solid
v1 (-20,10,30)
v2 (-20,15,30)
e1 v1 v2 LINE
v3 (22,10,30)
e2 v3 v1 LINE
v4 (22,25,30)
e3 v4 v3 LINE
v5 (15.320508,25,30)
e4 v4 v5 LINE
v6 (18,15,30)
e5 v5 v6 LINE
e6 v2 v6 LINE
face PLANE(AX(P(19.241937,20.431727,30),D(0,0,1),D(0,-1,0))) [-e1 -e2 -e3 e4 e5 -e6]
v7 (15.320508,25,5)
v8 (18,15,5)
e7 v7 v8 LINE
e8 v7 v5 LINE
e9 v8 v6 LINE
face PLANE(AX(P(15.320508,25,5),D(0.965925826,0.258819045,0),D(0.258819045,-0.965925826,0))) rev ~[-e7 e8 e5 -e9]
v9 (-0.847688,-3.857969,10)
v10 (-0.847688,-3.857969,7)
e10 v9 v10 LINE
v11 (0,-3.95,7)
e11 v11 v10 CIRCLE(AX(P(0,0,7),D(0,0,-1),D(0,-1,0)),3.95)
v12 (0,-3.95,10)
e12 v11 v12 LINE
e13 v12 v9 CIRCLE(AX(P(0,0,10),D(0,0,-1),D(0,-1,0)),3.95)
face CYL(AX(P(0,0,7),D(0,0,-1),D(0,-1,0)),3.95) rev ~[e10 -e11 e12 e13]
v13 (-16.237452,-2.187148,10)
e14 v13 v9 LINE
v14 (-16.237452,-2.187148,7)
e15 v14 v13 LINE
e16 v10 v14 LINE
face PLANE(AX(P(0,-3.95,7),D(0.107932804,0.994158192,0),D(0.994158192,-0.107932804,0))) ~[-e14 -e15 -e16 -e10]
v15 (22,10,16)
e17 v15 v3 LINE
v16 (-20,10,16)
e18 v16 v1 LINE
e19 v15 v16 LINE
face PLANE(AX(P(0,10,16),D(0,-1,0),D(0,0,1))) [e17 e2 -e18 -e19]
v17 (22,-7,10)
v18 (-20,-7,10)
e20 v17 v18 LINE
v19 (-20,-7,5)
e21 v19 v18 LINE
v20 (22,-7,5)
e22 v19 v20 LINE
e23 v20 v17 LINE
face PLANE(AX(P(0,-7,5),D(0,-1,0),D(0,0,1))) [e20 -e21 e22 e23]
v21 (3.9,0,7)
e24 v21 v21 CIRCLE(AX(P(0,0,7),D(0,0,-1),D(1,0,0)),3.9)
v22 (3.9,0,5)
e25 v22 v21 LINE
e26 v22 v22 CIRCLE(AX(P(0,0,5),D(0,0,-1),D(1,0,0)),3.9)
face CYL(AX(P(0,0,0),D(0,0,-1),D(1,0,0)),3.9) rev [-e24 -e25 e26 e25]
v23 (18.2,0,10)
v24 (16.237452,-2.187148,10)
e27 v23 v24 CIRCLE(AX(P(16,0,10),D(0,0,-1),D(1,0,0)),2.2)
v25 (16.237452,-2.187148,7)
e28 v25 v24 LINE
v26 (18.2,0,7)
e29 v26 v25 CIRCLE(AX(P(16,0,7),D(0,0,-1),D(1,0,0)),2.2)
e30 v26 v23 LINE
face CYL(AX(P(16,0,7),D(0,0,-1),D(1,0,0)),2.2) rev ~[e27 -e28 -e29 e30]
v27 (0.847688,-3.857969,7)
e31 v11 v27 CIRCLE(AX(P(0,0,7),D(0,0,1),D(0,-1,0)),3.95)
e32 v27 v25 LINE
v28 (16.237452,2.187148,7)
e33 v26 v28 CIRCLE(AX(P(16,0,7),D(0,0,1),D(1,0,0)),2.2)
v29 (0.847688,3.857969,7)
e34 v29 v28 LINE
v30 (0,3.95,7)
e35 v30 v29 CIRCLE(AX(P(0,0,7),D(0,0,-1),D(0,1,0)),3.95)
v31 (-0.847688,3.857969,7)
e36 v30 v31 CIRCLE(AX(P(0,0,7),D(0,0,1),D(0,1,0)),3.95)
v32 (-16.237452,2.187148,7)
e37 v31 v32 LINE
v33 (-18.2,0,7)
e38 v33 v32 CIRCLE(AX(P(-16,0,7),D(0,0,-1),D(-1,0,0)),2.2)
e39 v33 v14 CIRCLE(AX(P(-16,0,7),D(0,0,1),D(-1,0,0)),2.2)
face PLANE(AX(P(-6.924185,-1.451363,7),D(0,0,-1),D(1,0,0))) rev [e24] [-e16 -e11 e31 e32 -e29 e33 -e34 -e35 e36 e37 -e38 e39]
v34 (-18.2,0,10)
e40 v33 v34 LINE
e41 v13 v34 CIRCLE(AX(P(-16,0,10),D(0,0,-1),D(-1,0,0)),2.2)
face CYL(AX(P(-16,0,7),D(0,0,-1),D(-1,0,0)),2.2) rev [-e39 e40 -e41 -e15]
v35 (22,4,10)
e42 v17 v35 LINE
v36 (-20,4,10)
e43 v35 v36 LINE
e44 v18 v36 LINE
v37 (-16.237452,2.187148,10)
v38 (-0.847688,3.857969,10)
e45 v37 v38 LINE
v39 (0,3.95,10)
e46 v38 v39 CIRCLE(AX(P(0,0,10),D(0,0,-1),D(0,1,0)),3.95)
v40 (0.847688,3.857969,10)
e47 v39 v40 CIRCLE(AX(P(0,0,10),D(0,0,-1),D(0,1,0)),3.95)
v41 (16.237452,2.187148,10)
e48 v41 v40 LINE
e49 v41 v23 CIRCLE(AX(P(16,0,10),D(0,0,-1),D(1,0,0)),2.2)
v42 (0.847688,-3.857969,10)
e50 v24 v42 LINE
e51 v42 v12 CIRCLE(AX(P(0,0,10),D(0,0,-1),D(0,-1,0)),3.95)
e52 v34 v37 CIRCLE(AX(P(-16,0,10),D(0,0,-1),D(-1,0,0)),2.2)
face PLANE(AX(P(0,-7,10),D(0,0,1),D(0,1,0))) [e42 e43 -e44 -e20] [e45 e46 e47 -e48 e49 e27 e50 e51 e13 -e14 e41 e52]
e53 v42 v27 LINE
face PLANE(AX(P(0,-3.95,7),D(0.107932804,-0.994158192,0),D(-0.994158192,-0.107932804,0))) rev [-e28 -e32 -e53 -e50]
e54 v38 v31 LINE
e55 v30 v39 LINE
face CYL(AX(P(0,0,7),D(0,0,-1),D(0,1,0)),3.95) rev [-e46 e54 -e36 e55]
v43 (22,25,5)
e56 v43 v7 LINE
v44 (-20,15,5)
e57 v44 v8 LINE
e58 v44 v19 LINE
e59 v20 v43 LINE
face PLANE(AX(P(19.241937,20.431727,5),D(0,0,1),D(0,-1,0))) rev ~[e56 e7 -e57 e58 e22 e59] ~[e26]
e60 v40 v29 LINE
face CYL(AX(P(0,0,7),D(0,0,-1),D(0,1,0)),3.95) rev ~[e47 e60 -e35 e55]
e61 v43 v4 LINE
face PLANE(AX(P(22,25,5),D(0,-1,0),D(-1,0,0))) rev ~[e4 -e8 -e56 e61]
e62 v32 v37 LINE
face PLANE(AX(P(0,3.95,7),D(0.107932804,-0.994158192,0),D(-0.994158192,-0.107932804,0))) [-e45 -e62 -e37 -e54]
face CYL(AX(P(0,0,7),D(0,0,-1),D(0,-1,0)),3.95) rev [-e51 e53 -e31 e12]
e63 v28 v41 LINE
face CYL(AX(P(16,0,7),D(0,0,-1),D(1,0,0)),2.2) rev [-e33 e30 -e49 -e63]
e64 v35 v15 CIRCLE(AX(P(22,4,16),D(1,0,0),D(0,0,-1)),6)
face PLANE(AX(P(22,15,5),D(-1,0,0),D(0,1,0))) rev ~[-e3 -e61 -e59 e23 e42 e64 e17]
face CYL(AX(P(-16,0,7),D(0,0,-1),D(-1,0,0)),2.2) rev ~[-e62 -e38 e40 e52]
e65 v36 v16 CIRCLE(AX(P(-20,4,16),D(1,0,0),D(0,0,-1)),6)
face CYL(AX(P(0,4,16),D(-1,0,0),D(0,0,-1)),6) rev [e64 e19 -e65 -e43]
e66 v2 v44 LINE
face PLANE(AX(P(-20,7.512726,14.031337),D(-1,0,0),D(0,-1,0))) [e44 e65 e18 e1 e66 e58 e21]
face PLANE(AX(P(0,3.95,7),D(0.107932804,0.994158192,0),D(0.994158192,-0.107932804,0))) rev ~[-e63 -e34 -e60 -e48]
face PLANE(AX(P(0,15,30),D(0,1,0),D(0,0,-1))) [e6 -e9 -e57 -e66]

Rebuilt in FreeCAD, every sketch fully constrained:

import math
import FreeCAD as App
import Part
import Sketcher
Q = App.Units.Quantity


def add_polygon(sketch, points):
    """Adds a closed chain of lines whose ends are joined by coincident constraints."""
    first, n = sketch.GeometryCount, len(points)
    for a, b in zip(points, points[1:] + points[:1]):
        sketch.addGeometry(Part.LineSegment(App.Vector(*a, 0), App.Vector(*b, 0)), False)
    for i in range(n):
        sketch.addConstraint(Sketcher.Constraint("Coincident", first + i, 2, first + (i + 1) % n, 1))

doc = App.newDocument("Part")
params = doc.addObject("Spreadsheet::Sheet", "Params")
for row, (alias, value) in enumerate([
    ("sketch1_radius", "6 mm"),
    ("sketch1_width", "22 mm"),
    ("sketch1_width2", "5 mm"),
    ("sketch1_height", "25 mm"),
    ("pad1_length", "20 mm"),
    ("pad1_length2", "22 mm"),
    ("sketch2_radius", "2.2 mm"),
    ("sketch2_radius2", "3.95 mm"),
    ("sketch3_radius", "2.2 mm"),
    ("sketch3_radius2", "3.95 mm"),
    ("sketch4_width", "4 mm"),
    ("sketch4_height", "10 mm"),
    ("pad2_length", "25 mm"),
    ("sketch5_diameter", "7.8 mm"),
], start=1):
    params.set(f"A{row}", alias)
    params.set(f"B{row}", "=" + value)
    params.setAlias(f"B{row}", alias)

body = doc.addObject("PartDesign::Body", "Body")

# Sketch on YZ plane
sketch1 = body.newObject("Sketcher::SketchObject", "Sketch")
sketch1.AttachmentSupport = (doc.getObject("YZ_Plane"), [""])
sketch1.MapMode = "FlatFace"
sketch1.addGeometry([
    Part.LineSegment(App.Vector(-7, 10, 0), App.Vector(-7, 5, 0)),  # 0
    Part.LineSegment(App.Vector(-7, 5, 0), App.Vector(15, 5, 0)),  # 1
    Part.LineSegment(App.Vector(15, 5, 0), App.Vector(15, 30, 0)),  # 2
    Part.LineSegment(App.Vector(15, 30, 0), App.Vector(10, 30, 0)),  # 3
    Part.LineSegment(App.Vector(10, 30, 0), App.Vector(10, 16, 0)),  # 4
    Part.ArcOfCircle(Part.Circle(App.Vector(4, 16, 0), App.Vector(0, 0, 1), 6), math.radians(-90), math.radians(0)),  # 5
    Part.LineSegment(App.Vector(4, 10, 0), App.Vector(-7, 10, 0)),  # 6
], False)
sketch1.addConstraint([
    Sketcher.Constraint("Coincident", 0, 2, 1, 1),
    Sketcher.Constraint("Coincident", 1, 2, 2, 1),
    Sketcher.Constraint("Coincident", 2, 2, 3, 1),
    Sketcher.Constraint("Coincident", 3, 2, 4, 1),
    Sketcher.Constraint("Tangent", 4, 2, 5, 2),
    Sketcher.Constraint("Tangent", 5, 1, 6, 1),
    Sketcher.Constraint("Coincident", 6, 2, 0, 1),
    Sketcher.Constraint("Vertical", 0),
    Sketcher.Constraint("Horizontal", 1),
    Sketcher.Constraint("Vertical", 2),
    Sketcher.Constraint("Horizontal", 3),
    Sketcher.Constraint("Vertical", 4),
    Sketcher.Constraint("Horizontal", 6),
    Sketcher.Constraint("Equal", 3, 0),
    Sketcher.Constraint("Radius", 5, 6.0),
    Sketcher.Constraint("DistanceX", 1, 1, 1, 2, 22.0),
    Sketcher.Constraint("DistanceX", 3, 2, 3, 1, 5.0),
    Sketcher.Constraint("DistanceY", 2, 1, 2, 2, 25.0),
    Sketcher.Constraint("DistanceX", -1, 1, 5, 3, 4.0),
    Sketcher.Constraint("DistanceY", -1, 1, 5, 3, 16.0),
])
sketch1.setExpression("Constraints[14]", "Params.sketch1_radius")
sketch1.setExpression("Constraints[15]", "Params.sketch1_width")
sketch1.setExpression("Constraints[16]", "Params.sketch1_width2")
sketch1.setExpression("Constraints[17]", "Params.sketch1_height")
pad1 = body.newObject("PartDesign::Pad", "Pad")
pad1.Profile = sketch1
pad1.Type = "TwoLengths"
pad1.setExpression("Length", "Params.pad1_length")
pad1.setExpression("Length2", "Params.pad1_length2")
pad1.Reversed = True

# Sketch on XY plane
sketch2 = body.newObject("Sketcher::SketchObject", "Sketch001")
sketch2.AttachmentSupport = (doc.getObject("XY_Plane"), [""])
sketch2.MapMode = "FlatFace"
sketch2.AttachmentOffset = App.Placement(App.Vector(0, 0, 7), App.Rotation())
sketch2.addGeometry([
    Part.ArcOfCircle(Part.Circle(App.Vector(0, 0, 0), App.Vector(0, 0, 1), 3.95), math.radians(0), math.radians(90)),
    Part.LineSegment(App.Vector(3.95, 0, 0), App.Vector(-18.2, 0, 0)),
    Part.ArcOfCircle(Part.Circle(App.Vector(-16, 0, 0), App.Vector(0, 0, 1), 2.2), math.radians(96.196164), math.radians(180)),
    Part.LineSegment(App.Vector(-16.237452, 2.187148, 0), App.Vector(0, 3.95, 0)),
], False)
sketch2.addConstraint([
    Sketcher.Constraint("Coincident", 0, 1, 1, 1),
    Sketcher.Constraint("Coincident", 1, 2, 2, 2),
    Sketcher.Constraint("Tangent", 2, 1, 3, 1),
    Sketcher.Constraint("Coincident", 3, 2, 0, 2),
    Sketcher.Constraint("Horizontal", 1),
    Sketcher.Constraint("Coincident", 0, 3, -1, 1),
    Sketcher.Constraint("PointOnObject", 2, 3, -1),
    Sketcher.Constraint("PointOnObject", 0, 1, -1),
    Sketcher.Constraint("PointOnObject", 3, 2, -2),
    Sketcher.Constraint("Radius", 2, 2.2),
    Sketcher.Constraint("Radius", 0, 3.95),
    Sketcher.Constraint("DistanceX", 2, 3, -1, 1, 16.0),
])
sketch2.setExpression("Constraints[9]", "Params.sketch2_radius")
sketch2.setExpression("Constraints[10]", "Params.sketch2_radius2")
pocket1 = body.newObject("PartDesign::Pocket", "Pocket")
pocket1.Profile = sketch2
pocket1.Type = "ThroughAll"
pocket1.Reversed = True

# Sketch on XY plane
sketch3 = body.newObject("Sketcher::SketchObject", "Sketch002")
sketch3.AttachmentSupport = (doc.getObject("XY_Plane"), [""])
sketch3.MapMode = "FlatFace"
sketch3.AttachmentOffset = App.Placement(App.Vector(0, 0, 7), App.Rotation())
sketch3.addGeometry([
    Part.ArcOfCircle(Part.Circle(App.Vector(0, 0, 0), App.Vector(0, 0, 1), 3.95), math.radians(90), math.radians(180)),
    Part.LineSegment(App.Vector(-3.95, 0, 0), App.Vector(18.2, 0, 0)),
    Part.ArcOfCircle(Part.Circle(App.Vector(16, 0, 0), App.Vector(0, 0, 1), 2.2), math.radians(0), math.radians(83.803836)),
    Part.LineSegment(App.Vector(16.237452, 2.187148, 0), App.Vector(0, 3.95, 0)),
], False)
sketch3.addConstraint([
    Sketcher.Constraint("Coincident", 0, 2, 1, 1),
    Sketcher.Constraint("Coincident", 1, 2, 2, 1),
    Sketcher.Constraint("Tangent", 2, 2, 3, 1),
    Sketcher.Constraint("Coincident", 3, 2, 0, 1),
    Sketcher.Constraint("Horizontal", 1),
    Sketcher.Constraint("Coincident", 0, 3, -1, 1),
    Sketcher.Constraint("PointOnObject", 2, 3, -1),
    Sketcher.Constraint("PointOnObject", 0, 2, -1),
    Sketcher.Constraint("PointOnObject", 3, 2, -2),
    Sketcher.Constraint("Radius", 2, 2.2),
    Sketcher.Constraint("Radius", 0, 3.95),
    Sketcher.Constraint("DistanceX", -1, 1, 2, 3, 16.0),
])
sketch3.setExpression("Constraints[9]", "Params.sketch3_radius")
sketch3.setExpression("Constraints[10]", "Params.sketch3_radius2")
pocket2 = body.newObject("PartDesign::Pocket", "Pocket001")
pocket2.Profile = sketch3
pocket2.Type = "ThroughAll"
pocket2.Reversed = True
doc.recompute()

mirrored = body.newObject("PartDesign::Mirrored", "Mirrored")
mirrored.Originals = [pocket1, pocket2]
mirrored.MirrorPlane = (doc.getObject("XZ_Plane"), [""])
body.Tip = mirrored

# Sketch on XY plane
sketch4 = body.newObject("Sketcher::SketchObject", "Sketch003")
sketch4.AttachmentSupport = (doc.getObject("XY_Plane"), [""])
sketch4.MapMode = "FlatFace"
sketch4.AttachmentOffset = App.Placement(App.Vector(0, 0, 5), App.Rotation())
add_polygon(sketch4, [(22, 25), (22, 15), (18, 15), (15.320508, 25)])  # lines 0-3
sketch4.addConstraint([
    Sketcher.Constraint("Vertical", 0),
    Sketcher.Constraint("Horizontal", 1),
    Sketcher.Constraint("Horizontal", 3),
    Sketcher.Constraint("DistanceX", 1, 2, 1, 1, 4.0),
    Sketcher.Constraint("DistanceY", 0, 2, 0, 1, 10.0),
    Sketcher.Constraint("Angle", 2, Q("105 deg")),
    Sketcher.Constraint("DistanceX", -1, 1, 0, 2, 22.0),
    Sketcher.Constraint("DistanceY", -1, 1, 0, 2, 15.0),
])
sketch4.setExpression("Constraints[7]", "Params.sketch4_width")
sketch4.setExpression("Constraints[8]", "Params.sketch4_height")
pad2 = body.newObject("PartDesign::Pad", "Pad001")
pad2.Profile = sketch4
pad2.setExpression("Length", "Params.pad2_length")

# Sketch on XY plane
sketch5 = body.newObject("Sketcher::SketchObject", "Sketch004")
sketch5.AttachmentSupport = (doc.getObject("XY_Plane"), [""])
sketch5.MapMode = "FlatFace"
sketch5.addGeometry(Part.Circle(App.Vector(0, 0, 0), App.Vector(0, 0, 1), 3.9), False)
sketch5.addConstraint([
    Sketcher.Constraint("Coincident", 0, 3, -1, 1),
    Sketcher.Constraint("Diameter", 0, 7.8),
])
sketch5.setExpression("Constraints[1]", "Params.sketch5_diameter")
pocket3 = body.newObject("PartDesign::Pocket", "Pocket002")
pocket3.Profile = sketch5
pocket3.Type = "ThroughAll"
pocket3.Midplane = True

doc.recompute()
